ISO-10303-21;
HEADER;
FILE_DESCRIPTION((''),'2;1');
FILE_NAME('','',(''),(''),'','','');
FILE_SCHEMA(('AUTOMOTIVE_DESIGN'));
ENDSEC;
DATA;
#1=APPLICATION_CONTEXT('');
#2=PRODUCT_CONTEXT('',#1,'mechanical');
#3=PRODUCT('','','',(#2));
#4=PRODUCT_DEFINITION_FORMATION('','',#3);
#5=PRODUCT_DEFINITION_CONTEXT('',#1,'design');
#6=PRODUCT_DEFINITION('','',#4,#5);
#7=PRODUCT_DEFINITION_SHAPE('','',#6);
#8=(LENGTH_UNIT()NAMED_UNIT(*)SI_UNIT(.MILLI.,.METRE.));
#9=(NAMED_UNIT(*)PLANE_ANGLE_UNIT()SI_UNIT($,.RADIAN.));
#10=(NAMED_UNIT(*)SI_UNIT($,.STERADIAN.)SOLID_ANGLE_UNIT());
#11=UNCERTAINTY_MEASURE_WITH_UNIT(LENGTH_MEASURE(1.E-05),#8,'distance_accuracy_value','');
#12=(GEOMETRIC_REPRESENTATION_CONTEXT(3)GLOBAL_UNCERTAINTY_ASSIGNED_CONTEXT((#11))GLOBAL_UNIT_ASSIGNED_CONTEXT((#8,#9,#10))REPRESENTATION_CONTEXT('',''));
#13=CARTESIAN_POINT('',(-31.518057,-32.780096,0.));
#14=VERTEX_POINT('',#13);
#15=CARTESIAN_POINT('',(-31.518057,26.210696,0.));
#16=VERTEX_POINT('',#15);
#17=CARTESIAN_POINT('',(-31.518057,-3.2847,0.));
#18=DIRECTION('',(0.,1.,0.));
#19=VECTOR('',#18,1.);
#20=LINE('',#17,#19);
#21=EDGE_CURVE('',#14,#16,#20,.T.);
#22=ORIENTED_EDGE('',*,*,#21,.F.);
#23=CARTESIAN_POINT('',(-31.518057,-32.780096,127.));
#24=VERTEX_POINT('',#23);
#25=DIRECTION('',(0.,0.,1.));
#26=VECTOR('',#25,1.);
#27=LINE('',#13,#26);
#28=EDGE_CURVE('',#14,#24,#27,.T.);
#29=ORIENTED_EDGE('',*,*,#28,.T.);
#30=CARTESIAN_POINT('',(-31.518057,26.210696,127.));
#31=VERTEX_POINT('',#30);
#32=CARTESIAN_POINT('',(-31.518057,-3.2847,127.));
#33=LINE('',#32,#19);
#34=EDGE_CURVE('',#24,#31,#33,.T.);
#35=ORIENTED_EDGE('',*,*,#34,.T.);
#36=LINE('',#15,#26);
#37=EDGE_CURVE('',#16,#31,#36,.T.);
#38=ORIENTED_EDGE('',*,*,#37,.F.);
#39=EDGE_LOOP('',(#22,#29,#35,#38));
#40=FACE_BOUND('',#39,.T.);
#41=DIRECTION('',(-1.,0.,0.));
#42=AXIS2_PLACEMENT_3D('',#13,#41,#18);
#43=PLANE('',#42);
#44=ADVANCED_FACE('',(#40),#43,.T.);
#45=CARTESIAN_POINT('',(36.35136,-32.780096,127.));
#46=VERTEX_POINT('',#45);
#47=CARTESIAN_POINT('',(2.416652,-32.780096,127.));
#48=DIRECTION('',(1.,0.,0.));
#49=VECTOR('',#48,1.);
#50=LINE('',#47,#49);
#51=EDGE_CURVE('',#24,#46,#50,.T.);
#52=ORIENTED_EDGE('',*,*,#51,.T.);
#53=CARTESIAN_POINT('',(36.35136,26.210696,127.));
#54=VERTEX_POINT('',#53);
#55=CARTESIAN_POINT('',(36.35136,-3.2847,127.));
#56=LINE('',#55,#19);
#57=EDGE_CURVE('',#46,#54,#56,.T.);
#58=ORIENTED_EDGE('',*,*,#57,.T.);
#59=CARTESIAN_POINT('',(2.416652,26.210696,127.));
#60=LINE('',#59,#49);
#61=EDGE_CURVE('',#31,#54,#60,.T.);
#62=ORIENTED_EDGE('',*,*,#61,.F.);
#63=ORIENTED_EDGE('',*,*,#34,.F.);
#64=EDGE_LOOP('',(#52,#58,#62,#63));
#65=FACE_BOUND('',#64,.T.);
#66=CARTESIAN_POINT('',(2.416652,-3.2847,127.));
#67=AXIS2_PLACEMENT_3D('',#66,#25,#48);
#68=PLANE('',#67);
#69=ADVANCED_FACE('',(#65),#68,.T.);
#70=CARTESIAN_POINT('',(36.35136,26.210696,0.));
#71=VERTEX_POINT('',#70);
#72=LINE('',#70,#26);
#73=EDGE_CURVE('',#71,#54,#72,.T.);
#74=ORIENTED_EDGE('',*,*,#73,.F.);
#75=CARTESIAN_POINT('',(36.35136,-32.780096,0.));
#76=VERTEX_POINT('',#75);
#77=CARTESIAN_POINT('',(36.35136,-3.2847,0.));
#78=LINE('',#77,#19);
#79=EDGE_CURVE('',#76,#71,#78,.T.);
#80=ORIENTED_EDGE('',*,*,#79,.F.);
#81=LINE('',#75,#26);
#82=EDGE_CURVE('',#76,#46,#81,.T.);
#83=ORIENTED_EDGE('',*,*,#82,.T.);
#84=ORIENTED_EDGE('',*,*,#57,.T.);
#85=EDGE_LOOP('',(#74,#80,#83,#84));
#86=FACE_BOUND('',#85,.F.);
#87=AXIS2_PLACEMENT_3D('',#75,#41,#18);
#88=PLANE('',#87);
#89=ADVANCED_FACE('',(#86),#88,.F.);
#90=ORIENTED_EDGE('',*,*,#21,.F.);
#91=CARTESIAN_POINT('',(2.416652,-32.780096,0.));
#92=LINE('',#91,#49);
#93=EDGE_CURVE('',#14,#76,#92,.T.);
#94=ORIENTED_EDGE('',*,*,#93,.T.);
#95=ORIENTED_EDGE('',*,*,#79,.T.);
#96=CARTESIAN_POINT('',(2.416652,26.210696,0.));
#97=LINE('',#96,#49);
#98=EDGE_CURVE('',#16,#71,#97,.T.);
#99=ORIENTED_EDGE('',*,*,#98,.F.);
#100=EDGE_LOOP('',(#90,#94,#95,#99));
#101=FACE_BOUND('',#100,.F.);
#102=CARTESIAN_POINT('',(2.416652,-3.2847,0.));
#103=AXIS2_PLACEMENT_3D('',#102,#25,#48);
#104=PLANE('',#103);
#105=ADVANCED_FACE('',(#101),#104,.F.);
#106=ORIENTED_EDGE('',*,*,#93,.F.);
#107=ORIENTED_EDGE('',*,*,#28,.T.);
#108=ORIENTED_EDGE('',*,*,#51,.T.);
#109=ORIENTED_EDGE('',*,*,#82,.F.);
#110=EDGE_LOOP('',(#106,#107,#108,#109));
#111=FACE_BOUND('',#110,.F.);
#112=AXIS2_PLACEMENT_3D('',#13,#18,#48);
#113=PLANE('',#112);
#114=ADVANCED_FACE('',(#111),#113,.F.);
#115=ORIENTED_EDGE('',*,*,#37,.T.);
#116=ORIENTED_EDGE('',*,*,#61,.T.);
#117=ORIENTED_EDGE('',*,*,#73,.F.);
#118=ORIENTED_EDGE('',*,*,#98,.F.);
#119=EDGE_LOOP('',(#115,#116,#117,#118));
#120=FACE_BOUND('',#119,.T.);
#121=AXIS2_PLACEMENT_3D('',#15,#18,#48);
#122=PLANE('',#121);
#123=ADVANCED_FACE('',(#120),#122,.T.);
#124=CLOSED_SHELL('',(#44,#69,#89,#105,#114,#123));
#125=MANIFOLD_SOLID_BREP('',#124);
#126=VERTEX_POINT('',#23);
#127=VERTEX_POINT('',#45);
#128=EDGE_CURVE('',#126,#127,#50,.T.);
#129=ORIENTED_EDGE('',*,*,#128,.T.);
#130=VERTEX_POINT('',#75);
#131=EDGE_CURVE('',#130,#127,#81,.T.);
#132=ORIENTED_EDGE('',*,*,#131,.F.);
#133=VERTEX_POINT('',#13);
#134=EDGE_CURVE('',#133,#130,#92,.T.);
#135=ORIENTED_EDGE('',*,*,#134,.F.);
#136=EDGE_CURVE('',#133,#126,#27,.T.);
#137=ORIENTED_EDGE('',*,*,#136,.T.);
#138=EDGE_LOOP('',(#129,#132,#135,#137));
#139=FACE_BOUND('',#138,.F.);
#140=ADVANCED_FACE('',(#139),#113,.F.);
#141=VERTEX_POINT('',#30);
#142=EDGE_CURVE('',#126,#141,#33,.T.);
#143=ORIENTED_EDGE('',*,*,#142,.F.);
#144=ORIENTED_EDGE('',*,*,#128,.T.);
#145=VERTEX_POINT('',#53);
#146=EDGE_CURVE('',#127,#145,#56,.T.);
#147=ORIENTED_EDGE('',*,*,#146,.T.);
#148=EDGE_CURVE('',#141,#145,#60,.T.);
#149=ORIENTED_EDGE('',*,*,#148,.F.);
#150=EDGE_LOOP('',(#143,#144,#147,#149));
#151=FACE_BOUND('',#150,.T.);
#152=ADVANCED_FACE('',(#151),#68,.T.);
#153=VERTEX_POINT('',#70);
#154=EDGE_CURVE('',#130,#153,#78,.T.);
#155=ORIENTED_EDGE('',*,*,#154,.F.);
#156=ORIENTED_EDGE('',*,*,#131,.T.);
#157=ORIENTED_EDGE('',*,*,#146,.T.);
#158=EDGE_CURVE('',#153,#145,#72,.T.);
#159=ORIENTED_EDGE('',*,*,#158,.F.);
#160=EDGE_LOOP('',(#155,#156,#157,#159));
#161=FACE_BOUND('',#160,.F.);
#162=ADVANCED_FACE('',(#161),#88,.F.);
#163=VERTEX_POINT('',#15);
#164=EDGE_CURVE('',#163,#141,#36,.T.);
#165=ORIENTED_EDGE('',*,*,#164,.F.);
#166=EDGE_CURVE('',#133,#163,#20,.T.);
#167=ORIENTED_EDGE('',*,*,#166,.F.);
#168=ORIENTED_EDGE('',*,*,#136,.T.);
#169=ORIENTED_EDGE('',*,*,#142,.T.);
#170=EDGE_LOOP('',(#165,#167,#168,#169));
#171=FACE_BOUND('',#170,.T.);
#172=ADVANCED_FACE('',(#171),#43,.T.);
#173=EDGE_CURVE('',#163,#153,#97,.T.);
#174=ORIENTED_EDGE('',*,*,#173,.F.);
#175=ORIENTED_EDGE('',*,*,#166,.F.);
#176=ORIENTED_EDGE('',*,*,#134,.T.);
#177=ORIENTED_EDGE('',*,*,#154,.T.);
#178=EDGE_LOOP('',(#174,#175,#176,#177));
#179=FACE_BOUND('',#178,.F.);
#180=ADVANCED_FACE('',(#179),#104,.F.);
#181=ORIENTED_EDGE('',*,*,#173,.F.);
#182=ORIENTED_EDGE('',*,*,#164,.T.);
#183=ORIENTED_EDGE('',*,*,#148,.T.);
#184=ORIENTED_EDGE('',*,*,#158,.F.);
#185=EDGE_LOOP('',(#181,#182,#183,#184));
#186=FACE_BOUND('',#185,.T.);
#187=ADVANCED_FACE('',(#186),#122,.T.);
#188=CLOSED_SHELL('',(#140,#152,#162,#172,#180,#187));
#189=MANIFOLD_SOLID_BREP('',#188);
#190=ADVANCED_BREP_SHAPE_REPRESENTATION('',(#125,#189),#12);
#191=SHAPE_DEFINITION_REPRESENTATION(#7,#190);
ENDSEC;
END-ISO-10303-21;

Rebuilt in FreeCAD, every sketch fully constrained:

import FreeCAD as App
import Part
import Sketcher

V = App.Vector
Q = App.Units.Quantity


def add_polygon(sketch, points):
    """Adds a closed chain of lines whose ends are joined by coincident constraints."""
    first, n = sketch.GeometryCount, len(points)
    for a, b in zip(points, points[1:] + points[:1]):
        sketch.addGeometry(Part.LineSegment(App.Vector(*a, 0), App.Vector(*b, 0)), False)
    for i in range(n):
        sketch.addConstraint(Sketcher.Constraint("Coincident", first + i, 2, first + (i + 1) % n, 1))

doc = App.newDocument("Part")
body = doc.addObject("PartDesign::Body", "Body")

sketch1 = body.newObject("Sketcher::SketchObject", "Sketch")
sketch1.AttachmentSupport = (doc.getObject("XY_Plane"), [""])
sketch1.MapMode = "FlatFace"
add_polygon(sketch1, [(-31.518057, 26.210696), (-31.518057, -32.780096), (36.35136, -32.780096), (36.35136, 26.210696)])
sketch1.addConstraint([
    Sketcher.Constraint("Vertical", 0),
    Sketcher.Constraint("Horizontal", 1),
    Sketcher.Constraint("Vertical", 2),
    Sketcher.Constraint("Horizontal", 3),
    Sketcher.Constraint("DistanceY", 0, 2, 0, 1, Q("58.990791 mm")),
    Sketcher.Constraint("DistanceX", 1, 1, 1, 2, Q("67.869417 mm")),
    Sketcher.Constraint("DistanceX", -1, 1, 1, 2, Q("36.35136 mm")),
    Sketcher.Constraint("DistanceY", 0, 2, -1, 1, Q("32.780096 mm")),
])
pad1 = body.newObject("PartDesign::Pad", "Pad")
pad1.Profile = sketch1
pad1.Length = Q("5 in")
body2 = doc.addObject("PartDesign::Body", "Body001")

sketch2 = body2.newObject("Sketcher::SketchObject", "Sketch001")
sketch2.AttachmentSupport = (doc.getObject("XY_Plane001"), [""])
sketch2.MapMode = "FlatFace"
add_polygon(sketch2, [(-31.518057, 26.210696), (-31.518057, -32.780096), (36.35136, -32.780096), (36.35136, 26.210696)])
sketch2.addConstraint([
    Sketcher.Constraint("Vertical", 0),
    Sketcher.Constraint("Horizontal", 1),
    Sketcher.Constraint("Vertical", 2),
    Sketcher.Constraint("Horizontal", 3),
    Sketcher.Constraint("DistanceY", 0, 2, 0, 1, Q("58.990791 mm")),
    Sketcher.Constraint("DistanceX", 1, 1, 1, 2, Q("67.869417 mm")),
    Sketcher.Constraint("DistanceX", -1, 1, 1, 2, Q("36.35136 mm")),
    Sketcher.Constraint("DistanceY", 0, 2, -1, 1, Q("32.780096 mm")),
])
pad2 = body2.newObject("PartDesign::Pad", "Pad001")
pad2.Profile = sketch2
pad2.Length = Q("5 in")

doc.recompute()
